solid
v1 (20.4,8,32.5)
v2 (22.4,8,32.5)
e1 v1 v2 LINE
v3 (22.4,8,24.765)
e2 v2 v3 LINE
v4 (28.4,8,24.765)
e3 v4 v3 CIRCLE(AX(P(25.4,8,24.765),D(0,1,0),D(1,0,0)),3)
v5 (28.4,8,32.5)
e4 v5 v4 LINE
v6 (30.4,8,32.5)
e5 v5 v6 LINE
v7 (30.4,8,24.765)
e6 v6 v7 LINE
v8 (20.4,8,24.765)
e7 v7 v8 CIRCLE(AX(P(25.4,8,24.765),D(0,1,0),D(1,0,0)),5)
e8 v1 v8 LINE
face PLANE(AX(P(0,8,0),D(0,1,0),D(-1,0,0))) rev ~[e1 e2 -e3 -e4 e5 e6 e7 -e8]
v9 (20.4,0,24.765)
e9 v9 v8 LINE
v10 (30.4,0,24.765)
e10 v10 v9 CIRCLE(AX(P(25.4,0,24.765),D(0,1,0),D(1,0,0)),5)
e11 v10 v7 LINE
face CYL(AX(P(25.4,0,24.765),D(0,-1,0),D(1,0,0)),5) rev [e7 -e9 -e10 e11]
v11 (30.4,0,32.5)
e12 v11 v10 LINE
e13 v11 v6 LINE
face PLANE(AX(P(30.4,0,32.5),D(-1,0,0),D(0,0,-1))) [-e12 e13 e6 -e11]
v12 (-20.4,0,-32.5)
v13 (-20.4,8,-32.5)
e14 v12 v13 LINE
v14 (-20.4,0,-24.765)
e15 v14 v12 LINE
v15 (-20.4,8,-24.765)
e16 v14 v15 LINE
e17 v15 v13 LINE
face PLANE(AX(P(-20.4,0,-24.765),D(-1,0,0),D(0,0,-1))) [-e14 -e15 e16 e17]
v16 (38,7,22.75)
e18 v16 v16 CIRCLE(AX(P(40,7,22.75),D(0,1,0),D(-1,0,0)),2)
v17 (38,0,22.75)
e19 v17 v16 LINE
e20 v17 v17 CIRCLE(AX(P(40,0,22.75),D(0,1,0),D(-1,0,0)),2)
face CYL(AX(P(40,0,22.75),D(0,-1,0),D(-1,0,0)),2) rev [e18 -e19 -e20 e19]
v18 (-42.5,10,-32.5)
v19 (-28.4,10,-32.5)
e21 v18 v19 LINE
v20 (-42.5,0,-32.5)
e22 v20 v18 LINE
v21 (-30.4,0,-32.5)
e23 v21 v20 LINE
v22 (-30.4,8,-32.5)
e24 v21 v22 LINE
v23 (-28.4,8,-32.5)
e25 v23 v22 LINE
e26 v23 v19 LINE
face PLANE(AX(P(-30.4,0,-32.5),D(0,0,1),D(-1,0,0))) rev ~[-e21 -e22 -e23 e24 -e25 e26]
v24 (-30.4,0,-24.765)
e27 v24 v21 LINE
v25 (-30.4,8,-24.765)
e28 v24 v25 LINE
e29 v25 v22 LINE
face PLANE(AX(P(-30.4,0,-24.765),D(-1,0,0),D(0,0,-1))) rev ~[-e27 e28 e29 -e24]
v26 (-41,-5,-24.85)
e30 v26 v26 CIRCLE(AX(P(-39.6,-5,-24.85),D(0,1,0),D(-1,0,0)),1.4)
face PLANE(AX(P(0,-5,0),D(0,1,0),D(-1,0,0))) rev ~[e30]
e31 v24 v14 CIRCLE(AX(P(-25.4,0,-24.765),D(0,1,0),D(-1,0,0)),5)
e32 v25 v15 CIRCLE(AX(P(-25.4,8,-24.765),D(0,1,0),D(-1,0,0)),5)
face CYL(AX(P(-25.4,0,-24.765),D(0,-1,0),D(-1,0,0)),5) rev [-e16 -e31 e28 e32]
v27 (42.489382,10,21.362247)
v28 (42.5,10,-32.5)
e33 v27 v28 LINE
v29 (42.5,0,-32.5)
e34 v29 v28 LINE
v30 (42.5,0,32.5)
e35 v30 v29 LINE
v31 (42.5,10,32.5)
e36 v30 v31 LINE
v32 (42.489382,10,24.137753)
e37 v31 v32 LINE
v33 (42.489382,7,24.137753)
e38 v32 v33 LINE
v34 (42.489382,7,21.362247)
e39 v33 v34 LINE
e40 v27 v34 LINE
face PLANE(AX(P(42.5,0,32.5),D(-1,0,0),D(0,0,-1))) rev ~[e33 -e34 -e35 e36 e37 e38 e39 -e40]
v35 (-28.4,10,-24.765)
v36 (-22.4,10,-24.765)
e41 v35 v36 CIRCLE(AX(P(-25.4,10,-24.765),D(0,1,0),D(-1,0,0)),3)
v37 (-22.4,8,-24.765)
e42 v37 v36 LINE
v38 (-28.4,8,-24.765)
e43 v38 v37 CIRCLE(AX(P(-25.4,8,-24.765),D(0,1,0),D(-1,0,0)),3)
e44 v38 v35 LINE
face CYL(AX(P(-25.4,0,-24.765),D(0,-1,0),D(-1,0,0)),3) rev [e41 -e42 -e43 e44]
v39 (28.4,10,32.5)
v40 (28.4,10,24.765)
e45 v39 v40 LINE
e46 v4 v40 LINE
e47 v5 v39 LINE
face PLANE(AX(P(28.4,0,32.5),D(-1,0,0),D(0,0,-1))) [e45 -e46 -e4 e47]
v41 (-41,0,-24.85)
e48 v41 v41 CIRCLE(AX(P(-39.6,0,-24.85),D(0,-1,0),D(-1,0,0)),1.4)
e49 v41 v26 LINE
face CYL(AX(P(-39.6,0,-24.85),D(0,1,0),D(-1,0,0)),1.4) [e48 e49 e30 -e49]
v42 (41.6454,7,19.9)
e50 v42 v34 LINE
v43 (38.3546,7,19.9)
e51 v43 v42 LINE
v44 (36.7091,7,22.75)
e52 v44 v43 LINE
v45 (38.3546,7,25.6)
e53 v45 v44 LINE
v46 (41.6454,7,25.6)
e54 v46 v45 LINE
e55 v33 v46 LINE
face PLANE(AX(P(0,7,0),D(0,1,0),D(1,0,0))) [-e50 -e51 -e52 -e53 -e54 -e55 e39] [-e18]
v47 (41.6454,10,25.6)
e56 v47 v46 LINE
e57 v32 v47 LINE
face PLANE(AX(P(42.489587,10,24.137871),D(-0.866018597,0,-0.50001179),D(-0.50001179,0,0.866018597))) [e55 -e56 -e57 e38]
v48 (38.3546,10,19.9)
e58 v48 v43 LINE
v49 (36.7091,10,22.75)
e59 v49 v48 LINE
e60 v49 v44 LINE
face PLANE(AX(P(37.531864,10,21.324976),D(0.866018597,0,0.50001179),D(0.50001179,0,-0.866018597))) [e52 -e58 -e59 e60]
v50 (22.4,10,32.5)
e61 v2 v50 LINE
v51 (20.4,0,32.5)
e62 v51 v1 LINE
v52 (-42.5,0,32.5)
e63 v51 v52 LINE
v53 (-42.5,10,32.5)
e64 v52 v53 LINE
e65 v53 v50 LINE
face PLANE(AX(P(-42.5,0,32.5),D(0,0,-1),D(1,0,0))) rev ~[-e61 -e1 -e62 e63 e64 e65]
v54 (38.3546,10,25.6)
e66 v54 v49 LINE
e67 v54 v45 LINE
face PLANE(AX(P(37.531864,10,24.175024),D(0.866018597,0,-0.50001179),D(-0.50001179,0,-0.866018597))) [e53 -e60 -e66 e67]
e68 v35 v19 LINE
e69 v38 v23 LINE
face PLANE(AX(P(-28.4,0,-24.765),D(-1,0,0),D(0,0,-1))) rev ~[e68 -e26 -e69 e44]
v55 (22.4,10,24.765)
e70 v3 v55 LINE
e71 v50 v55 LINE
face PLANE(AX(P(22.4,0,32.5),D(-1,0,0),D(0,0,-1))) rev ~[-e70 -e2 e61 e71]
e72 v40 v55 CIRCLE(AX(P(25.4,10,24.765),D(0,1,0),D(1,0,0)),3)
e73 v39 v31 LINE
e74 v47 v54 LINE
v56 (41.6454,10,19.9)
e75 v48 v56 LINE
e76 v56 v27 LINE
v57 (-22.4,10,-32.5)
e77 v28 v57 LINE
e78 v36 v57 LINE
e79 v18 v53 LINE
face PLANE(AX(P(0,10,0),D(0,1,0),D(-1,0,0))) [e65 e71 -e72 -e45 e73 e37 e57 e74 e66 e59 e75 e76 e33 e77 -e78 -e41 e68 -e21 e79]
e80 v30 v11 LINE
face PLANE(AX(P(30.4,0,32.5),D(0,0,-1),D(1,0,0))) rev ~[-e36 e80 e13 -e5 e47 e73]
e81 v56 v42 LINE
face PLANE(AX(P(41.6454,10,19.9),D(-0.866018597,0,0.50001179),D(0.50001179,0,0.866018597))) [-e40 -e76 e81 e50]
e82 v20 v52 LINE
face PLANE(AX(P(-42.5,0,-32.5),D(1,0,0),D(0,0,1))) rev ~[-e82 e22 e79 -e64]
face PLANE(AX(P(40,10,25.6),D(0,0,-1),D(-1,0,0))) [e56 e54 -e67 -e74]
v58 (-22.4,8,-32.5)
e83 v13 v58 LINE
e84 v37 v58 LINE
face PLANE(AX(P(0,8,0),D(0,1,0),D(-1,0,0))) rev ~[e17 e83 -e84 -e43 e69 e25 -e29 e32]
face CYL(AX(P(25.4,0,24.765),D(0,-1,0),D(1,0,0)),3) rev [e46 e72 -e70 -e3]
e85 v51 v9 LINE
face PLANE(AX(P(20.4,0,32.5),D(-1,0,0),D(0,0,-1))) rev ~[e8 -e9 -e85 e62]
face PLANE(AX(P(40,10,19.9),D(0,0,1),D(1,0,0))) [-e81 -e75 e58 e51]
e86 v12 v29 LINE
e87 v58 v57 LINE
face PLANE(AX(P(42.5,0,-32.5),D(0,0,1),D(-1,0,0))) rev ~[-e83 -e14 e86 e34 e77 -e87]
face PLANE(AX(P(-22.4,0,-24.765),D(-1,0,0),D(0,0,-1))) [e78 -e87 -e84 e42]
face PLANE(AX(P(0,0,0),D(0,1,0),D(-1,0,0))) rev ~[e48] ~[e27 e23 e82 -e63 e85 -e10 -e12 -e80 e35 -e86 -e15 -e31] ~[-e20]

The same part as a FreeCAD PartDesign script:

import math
import FreeCAD as App
import Part
import Sketcher

V = App.Vector
Q = App.Units.Quantity


def add_polygon(sketch, points):
    """Adds a closed chain of lines whose ends are joined by coincident constraints."""
    first, n = sketch.GeometryCount, len(points)
    for a, b in zip(points, points[1:] + points[:1]):
        sketch.addGeometry(Part.LineSegment(App.Vector(*a, 0), App.Vector(*b, 0)), False)
    for i in range(n):
        sketch.addConstraint(Sketcher.Constraint("Coincident", first + i, 2, first + (i + 1) % n, 1))

doc = App.newDocument("Part")
params = doc.addObject("Spreadsheet::Sheet", "Params")
for row, (alias, value) in enumerate([
    ("sketch1_radius", "3 mm"),
    ("sketch1_height", "65 mm"),
    ("sketch1_width", "64.9 mm"),
    ("pad1_length", "10 mm"),
    ("sketch2_radius", "5 mm"),
    ("sketch2_radius2", "3 mm"),
    ("pocket1_length", "8 mm"),
    ("sketch3_diameter", "2.8 mm"),
    ("pad2_length", "5 mm"),
    ("sketch4_diameter", "4 mm"),
    ("pocket3_length", "3 mm"),
], start=1):
    params.set(f"A{row}", alias)
    params.set(f"B{row}", "=" + value)
    params.setAlias(f"B{row}", alias)

body = doc.addObject("PartDesign::Body", "Body")

# Sketch on XZ plane
sketch1 = body.newObject("Sketcher::SketchObject", "Sketch")
sketch1.AttachmentSupport = (doc.getObject("XZ_Plane"), [""])
sketch1.MapMode = "FlatFace"
sketch1.addGeometry([
    Part.LineSegment(V(-42.5, -32.5, 0), V(-42.5, 32.5, 0)),  # 0
    Part.LineSegment(V(-42.5, 32.5, 0), V(22.4, 32.5, 0)),  # 1
    Part.LineSegment(V(22.4, 32.5, 0), V(22.4, 24.765, 0)),  # 2
    Part.ArcOfCircle(Part.Circle(V(25.4, 24.765, 0), V(0, 0, 1), 3), math.radians(180), math.radians(360)),  # 3
    Part.LineSegment(V(28.4, 24.765, 0), V(28.4, 32.5, 0)),  # 4
    Part.LineSegment(V(28.4, 32.5, 0), V(42.5, 32.5, 0)),  # 5
    Part.LineSegment(V(42.5, 32.5, 0), V(42.5, -32.5, 0)),  # 6
    Part.LineSegment(V(42.5, -32.5, 0), V(-22.4, -32.5, 0)),  # 7
    Part.LineSegment(V(-22.4, -32.5, 0), V(-22.4, -24.765, 0)),  # 8
    Part.ArcOfCircle(Part.Circle(V(-25.4, -24.765, 0), V(0, 0, 1), 3), math.radians(0), math.radians(180)),  # 9
    Part.LineSegment(V(-28.4, -24.765, 0), V(-28.4, -32.5, 0)),  # 10
    Part.LineSegment(V(-28.4, -32.5, 0), V(-42.5, -32.5, 0)),  # 11
], False)
sketch1.addConstraint([
    Sketcher.Constraint("Coincident", 0, 2, 1, 1),
    Sketcher.Constraint("Coincident", 1, 2, 2, 1),
    Sketcher.Constraint("Tangent", 2, 2, 3, 1),
    Sketcher.Constraint("Tangent", 3, 2, 4, 1),
    Sketcher.Constraint("Coincident", 4, 2, 5, 1),
    Sketcher.Constraint("Coincident", 5, 2, 6, 1),
    Sketcher.Constraint("Coincident", 6, 2, 7, 1),
    Sketcher.Constraint("Coincident", 7, 2, 8, 1),
    Sketcher.Constraint("Tangent", 8, 2, 9, 1),
    Sketcher.Constraint("Tangent", 9, 2, 10, 1),
    Sketcher.Constraint("Coincident", 10, 2, 11, 1),
    Sketcher.Constraint("Coincident", 11, 2, 0, 1),
    Sketcher.Constraint("Vertical", 0),
    Sketcher.Constraint("Horizontal", 1),
    Sketcher.Constraint("Vertical", 2),
    Sketcher.Constraint("Vertical", 4),
    Sketcher.Constraint("Horizontal", 5),
    Sketcher.Constraint("Vertical", 6),
    Sketcher.Constraint("Horizontal", 7),
    Sketcher.Constraint("Vertical", 8),
    Sketcher.Constraint("Vertical", 10),
    Sketcher.Constraint("Horizontal", 11),
    Sketcher.Constraint("Equal", 3, 9),
    Sketcher.Constraint("Symmetric", 3, 3, 9, 3, -1, 1),
    Sketcher.Constraint("Symmetric", 0, 2, 6, 2, -1, 1),
    Sketcher.Constraint("Horizontal", 1, 2, 4, 2),
    Sketcher.Constraint("Horizontal", 7, 2, 10, 2),
    Sketcher.Constraint("Radius", 3, 3.0),
    Sketcher.Constraint("DistanceX", 9, 3, 3, 3, 50.8),
    Sketcher.Constraint("DistanceY", 0, 1, 0, 2, 65.0),
    Sketcher.Constraint("DistanceY", 9, 3, 3, 3, 49.53),
    Sketcher.Constraint("DistanceX", 1, 1, 1, 2, 64.9),
])
sketch1.setExpression("Constraints[27]", "Params.sketch1_radius")
sketch1.setExpression("Constraints[29]", "Params.sketch1_height")
sketch1.setExpression("Constraints[31]", "Params.sketch1_width")
pad1 = body.newObject("PartDesign::Pad", "Pad")
pad1.Profile = sketch1
pad1.setExpression("Length", "Params.pad1_length")
pad1.Reversed = True

# Sketch on XZ plane
sketch2 = body.newObject("Sketcher::SketchObject", "Sketch001")
sketch2.AttachmentSupport = (doc.getObject("XZ_Plane"), [""])
sketch2.MapMode = "FlatFace"
sketch2.addGeometry([
    Part.LineSegment(V(-28.4, -32.5, 0), V(-30.4, -32.5, 0)),  # 0
    Part.LineSegment(V(-30.4, -32.5, 0), V(-30.4, -24.765, 0)),  # 1
    Part.ArcOfCircle(Part.Circle(V(-25.4, -24.765, 0), V(0, 0, 1), 5), math.radians(0), math.radians(180)),  # 2
    Part.LineSegment(V(-20.4, -24.765, 0), V(-20.4, -32.5, 0)),  # 3
    Part.LineSegment(V(-20.4, -32.5, 0), V(-22.4, -32.5, 0)),  # 4
    Part.LineSegment(V(-22.4, -32.5, 0), V(-22.4, -24.765, 0)),  # 5
    Part.ArcOfCircle(Part.Circle(V(-25.4, -24.765, 0), V(0, 0, 1), 3), math.radians(0), math.radians(180)),  # 6
    Part.LineSegment(V(-28.4, -24.765, 0), V(-28.4, -32.5, 0)),  # 7
    Part.LineSegment(V(20.4, 24.765, 0), V(20.4, 32.5, 0)),  # 8
    Part.LineSegment(V(20.4, 32.5, 0), V(22.4, 32.5, 0)),  # 9
    Part.LineSegment(V(22.4, 32.5, 0), V(22.4, 24.765, 0)),  # 10
    Part.ArcOfCircle(Part.Circle(V(25.4, 24.765, 0), V(0, 0, 1), 3), math.radians(180), math.radians(360)),  # 11
    Part.LineSegment(V(28.4, 24.765, 0), V(28.4, 32.5, 0)),  # 12
    Part.LineSegment(V(28.4, 32.5, 0), V(30.4, 32.5, 0)),  # 13
    Part.LineSegment(V(30.4, 32.5, 0), V(30.4, 24.765, 0)),  # 14
    Part.ArcOfCircle(Part.Circle(V(25.4, 24.765, 0), V(0, 0, 1), 5), math.radians(180), math.radians(360)),  # 15
], False)
sketch2.addConstraint([
    Sketcher.Constraint("Coincident", 0, 2, 1, 1),
    Sketcher.Constraint("Tangent", 1, 2, 2, 2),
    Sketcher.Constraint("Tangent", 2, 1, 3, 1),
    Sketcher.Constraint("Coincident", 3, 2, 4, 1),
    Sketcher.Constraint("Coincident", 4, 2, 5, 1),
    Sketcher.Constraint("Tangent", 5, 2, 6, 1),
    Sketcher.Constraint("Tangent", 6, 2, 7, 1),
    Sketcher.Constraint("Coincident", 7, 2, 0, 1),
    Sketcher.Constraint("Coincident", 8, 2, 9, 1),
    Sketcher.Constraint("Coincident", 9, 2, 10, 1),
    Sketcher.Constraint("Tangent", 10, 2, 11, 1),
    Sketcher.Constraint("Tangent", 11, 2, 12, 1),
    Sketcher.Constraint("Coincident", 12, 2, 13, 1),
    Sketcher.Constraint("Coincident", 13, 2, 14, 1),
    Sketcher.Constraint("Tangent", 14, 2, 15, 2),
    Sketcher.Constraint("Tangent", 15, 1, 8, 1),
    Sketcher.Constraint("Horizontal", 0),
    Sketcher.Constraint("Vertical", 1),
    Sketcher.Constraint("Vertical", 3),
    Sketcher.Constraint("Horizontal", 4),
    Sketcher.Constraint("Vertical", 5),
    Sketcher.Constraint("Vertical", 7),
    Sketcher.Constraint("Vertical", 8),
    Sketcher.Constraint("Horizontal", 9),
    Sketcher.Constraint("Vertical", 10),
    Sketcher.Constraint("Vertical", 12),
    Sketcher.Constraint("Horizontal", 13),
    Sketcher.Constraint("Vertical", 14),
    Sketcher.Constraint("Coincident", 6, 3, 2, 3),
    Sketcher.Constraint("Coincident", 15, 3, 11, 3),
    Sketcher.Constraint("Equal", 6, 11),
    Sketcher.Constraint("Equal", 2, 15),
    Sketcher.Constraint("Symmetric", 2, 3, 11, 3, -1, 1),
    Sketcher.Constraint("Horizontal", 0, 2, 3, 2),
    Sketcher.Constraint("Horizontal", 9, 2, 12, 2),
    Sketcher.Constraint("Equal", 7, 8),
    Sketcher.Constraint("Radius", 2, 5.0),
    Sketcher.Constraint("Radius", 6, 3.0),
    Sketcher.Constraint("DistanceX", 2, 3, 11, 3, 50.8),
    Sketcher.Constraint("DistanceY", 2, 3, 11, 3, 49.53),
    Sketcher.Constraint("DistanceY", 0, 2, -1, 1, 32.5),
])
sketch2.setExpression("Constraints[36]", "Params.sketch2_radius")
sketch2.setExpression("Constraints[37]", "Params.sketch2_radius2")
pocket1 = body.newObject("PartDesign::Pocket", "Pocket")
pocket1.Profile = sketch2
pocket1.setExpression("Length", "Params.pocket1_length")

# Sketch on XZ plane
sketch3 = body.newObject("Sketcher::SketchObject", "Sketch002")
sketch3.AttachmentSupport = (doc.getObject("XZ_Plane"), [""])
sketch3.MapMode = "FlatFace"
sketch3.addGeometry(Part.Circle(V(-39.6, -24.85, 0), V(0, 0, 1), 1.4), False)
sketch3.addConstraint([
    Sketcher.Constraint("Diameter", 0, 2.8),
    Sketcher.Constraint("DistanceX", 0, 3, -1, 1, 39.6),
    Sketcher.Constraint("DistanceY", 0, 3, -1, 1, 24.85),
])
sketch3.setExpression("Constraints[0]", "Params.sketch3_diameter")
pad2 = body.newObject("PartDesign::Pad", "Pad001")
pad2.Profile = sketch3
pad2.setExpression("Length", "Params.pad2_length")

# Sketch on XZ plane
sketch4 = body.newObject("Sketcher::SketchObject", "Sketch003")
sketch4.AttachmentSupport = (doc.getObject("XZ_Plane"), [""])
sketch4.MapMode = "FlatFace"
sketch4.addGeometry(Part.Circle(V(40, 22.75, 0), V(0, 0, 1), 2), False)
sketch4.addConstraint([
    Sketcher.Constraint("Diameter", 0, 4.0),
    Sketcher.Constraint("DistanceX", -1, 1, 0, 3, 40.0),
    Sketcher.Constraint("DistanceY", -1, 1, 0, 3, 22.75),
])
sketch4.setExpression("Constraints[0]", "Params.sketch4_diameter")
pocket2 = body.newObject("PartDesign::Pocket", "Pocket001")
pocket2.Profile = sketch4
pocket2.Type = "ThroughAll"

# Sketch on XZ plane
sketch5 = body.newObject("Sketcher::SketchObject", "Sketch004")
sketch5.AttachmentSupport = (doc.getObject("XZ_Plane"), [""])
sketch5.MapMode = "FlatFace"
sketch5.AttachmentOffset = App.Placement(V(0, 0, -10), App.Rotation())
add_polygon(sketch5, [(41.6454, 25.6), (43.2909, 22.75), (41.6454, 19.9), (38.3546, 19.9), (36.7091, 22.75), (38.3546, 25.6)])  # lines 0-5
sketch5.addConstraint([
    Sketcher.Constraint("Horizontal", 2),
    Sketcher.Constraint("Horizontal", 5),
    Sketcher.Constraint("Parallel", 0, 3),
    Sketcher.Constraint("Parallel", 1, 4),
    Sketcher.Constraint("Horizontal", 0, 2, 3, 2),
    Sketcher.Constraint("Vertical", 2, 2, 4, 2),
    Sketcher.Constraint("Vertical", 1, 2, 5, 2),
    Sketcher.Constraint("DistanceY", 2, 2, 4, 2, 5.7),
    Sketcher.Constraint("Angle", 0, Q("-59.9992 deg")),
    Sketcher.Constraint("DistanceY", -1, 1, 1, 2, 19.9),
    Sketcher.Constraint("DistanceX", 2, 2, 2, 1, 3.2908),
    Sketcher.Constraint("DistanceX", -1, 1, 0, 2, 43.291),
])
pocket3 = body.newObject("PartDesign::Pocket", "Pocket002")
pocket3.Profile = sketch5
pocket3.setExpression("Length", "Params.pocket3_length")
pocket3.Reversed = True

doc.recompute()
